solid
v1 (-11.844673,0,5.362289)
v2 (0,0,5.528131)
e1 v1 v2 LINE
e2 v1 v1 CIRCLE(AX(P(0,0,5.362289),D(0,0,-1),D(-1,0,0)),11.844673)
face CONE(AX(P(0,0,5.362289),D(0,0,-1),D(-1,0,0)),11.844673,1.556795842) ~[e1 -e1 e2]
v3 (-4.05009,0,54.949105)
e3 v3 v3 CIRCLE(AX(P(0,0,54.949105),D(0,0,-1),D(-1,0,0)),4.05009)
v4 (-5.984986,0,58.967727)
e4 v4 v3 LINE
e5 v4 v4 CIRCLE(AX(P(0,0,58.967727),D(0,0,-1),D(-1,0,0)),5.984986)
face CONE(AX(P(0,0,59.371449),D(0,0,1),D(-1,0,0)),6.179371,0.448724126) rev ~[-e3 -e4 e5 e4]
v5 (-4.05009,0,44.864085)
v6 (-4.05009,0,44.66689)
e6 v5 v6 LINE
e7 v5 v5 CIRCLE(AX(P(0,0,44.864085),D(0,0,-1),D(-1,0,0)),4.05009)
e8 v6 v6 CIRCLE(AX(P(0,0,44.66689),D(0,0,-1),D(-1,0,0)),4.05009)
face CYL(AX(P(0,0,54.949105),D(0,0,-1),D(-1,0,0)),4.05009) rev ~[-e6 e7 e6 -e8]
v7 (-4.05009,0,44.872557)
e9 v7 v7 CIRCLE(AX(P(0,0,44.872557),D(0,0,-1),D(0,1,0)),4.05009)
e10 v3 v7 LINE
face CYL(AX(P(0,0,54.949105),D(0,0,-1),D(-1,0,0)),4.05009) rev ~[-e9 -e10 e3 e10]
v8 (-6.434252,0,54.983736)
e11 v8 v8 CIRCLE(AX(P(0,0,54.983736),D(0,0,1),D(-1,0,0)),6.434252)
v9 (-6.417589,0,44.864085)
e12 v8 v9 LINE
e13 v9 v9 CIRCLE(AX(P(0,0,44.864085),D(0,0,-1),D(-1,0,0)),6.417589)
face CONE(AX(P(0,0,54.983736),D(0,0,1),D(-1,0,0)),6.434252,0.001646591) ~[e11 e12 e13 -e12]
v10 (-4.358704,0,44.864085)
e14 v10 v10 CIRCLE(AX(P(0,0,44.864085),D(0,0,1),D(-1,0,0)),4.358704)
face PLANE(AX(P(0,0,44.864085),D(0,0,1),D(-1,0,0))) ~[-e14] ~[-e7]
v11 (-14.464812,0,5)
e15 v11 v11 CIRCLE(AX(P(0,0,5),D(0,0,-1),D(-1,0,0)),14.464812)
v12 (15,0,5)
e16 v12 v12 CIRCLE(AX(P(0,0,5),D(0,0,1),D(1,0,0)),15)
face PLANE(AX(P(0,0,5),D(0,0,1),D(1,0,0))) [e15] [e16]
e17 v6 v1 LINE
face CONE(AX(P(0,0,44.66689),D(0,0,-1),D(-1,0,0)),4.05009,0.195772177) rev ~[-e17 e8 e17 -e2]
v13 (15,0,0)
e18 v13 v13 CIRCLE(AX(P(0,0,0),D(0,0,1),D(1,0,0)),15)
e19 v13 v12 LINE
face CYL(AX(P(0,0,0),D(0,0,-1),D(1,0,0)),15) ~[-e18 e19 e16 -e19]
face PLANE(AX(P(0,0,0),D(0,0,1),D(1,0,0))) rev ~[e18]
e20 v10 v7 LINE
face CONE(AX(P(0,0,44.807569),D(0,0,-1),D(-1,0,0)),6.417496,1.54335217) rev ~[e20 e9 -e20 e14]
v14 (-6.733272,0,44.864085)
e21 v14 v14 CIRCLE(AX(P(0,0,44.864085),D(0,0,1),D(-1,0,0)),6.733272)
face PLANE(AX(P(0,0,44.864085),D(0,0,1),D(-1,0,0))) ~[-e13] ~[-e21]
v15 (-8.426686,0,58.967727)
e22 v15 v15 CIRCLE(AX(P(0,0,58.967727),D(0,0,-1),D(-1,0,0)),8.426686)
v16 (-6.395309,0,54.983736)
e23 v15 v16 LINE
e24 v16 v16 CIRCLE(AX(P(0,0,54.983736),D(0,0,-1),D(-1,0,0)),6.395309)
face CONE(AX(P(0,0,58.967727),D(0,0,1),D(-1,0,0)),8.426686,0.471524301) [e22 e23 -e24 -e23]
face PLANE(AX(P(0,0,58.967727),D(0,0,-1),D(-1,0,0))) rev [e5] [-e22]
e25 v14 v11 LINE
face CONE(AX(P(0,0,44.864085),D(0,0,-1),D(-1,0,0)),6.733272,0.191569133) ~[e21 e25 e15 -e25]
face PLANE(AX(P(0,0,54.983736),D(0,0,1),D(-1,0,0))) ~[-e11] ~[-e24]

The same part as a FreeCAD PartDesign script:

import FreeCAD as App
import Part
import Sketcher

V = App.Vector
Q = App.Units.Quantity

doc = App.newDocument("Part")
body = doc.addObject("PartDesign::Body", "Body")

# Sketch on XY plane
sketch1 = body.newObject("Sketcher::SketchObject", "Sketch")
sketch1.AttachmentSupport = (doc.getObject("XY_Plane"), [""])
sketch1.MapMode = "FlatFace"
sketch1.addGeometry(Part.Circle(V(0, 0, 0), V(0, 0, 1), 15), False)
sketch1.addConstraint([
    Sketcher.Constraint("Coincident", 0, 3, -1, 1),
    Sketcher.Constraint("Diameter", 0, 30.0),
])
pad1 = body.newObject("PartDesign::Pad", "Pad")
pad1.Profile = sketch1
pad1.Length = 5

# Sketch on XZ plane
sketch2 = body.newObject("Sketcher::SketchObject", "Sketch001")
sketch2.AttachmentSupport = (doc.getObject("XZ_Plane"), [""])
sketch2.MapMode = "FlatFace"
sketch2.addGeometry([
    Part.LineSegment(V(-14.491172, 4.864085, 0), V(0, 4.864085, 0)),
    Part.LineSegment(V(0, 4.864085, 0), V(0, 44.864085, 0)),
    Part.LineSegment(V(0, 44.864085, 0), V(-6.733272, 44.864085, 0)),
    Part.LineSegment(V(-6.733272, 44.864085, 0), V(-14.491172, 4.864085, 0)),
], False)
sketch2.addConstraint([
    Sketcher.Constraint("Coincident", 0, 2, 1, 1),
    Sketcher.Constraint("Coincident", 1, 2, 2, 1),
    Sketcher.Constraint("Coincident", 2, 2, 3, 1),
    Sketcher.Constraint("Coincident", 3, 2, 0, 1),
    Sketcher.Constraint("Horizontal", 0),
    Sketcher.Constraint("Vertical", 1),
    Sketcher.Constraint("Horizontal", 2),
    Sketcher.Constraint("PointOnObject", 0, 2, -2),
    Sketcher.Constraint("DistanceY", 1, 1, 1, 2, 40.0),
    Sketcher.Constraint("DistanceX", 3, 2, 2, 2, 7.7579),
    Sketcher.Constraint("DistanceX", 0, 1, 0, 2, 14.491172),
    Sketcher.Constraint("DistanceY", -1, 1, 0, 2, 4.864085),
])
revolution = body.newObject("PartDesign::Revolution", "Revolution")
revolution.Profile = sketch2
revolution.ReferenceAxis = (sketch2, ["V_Axis"])
revolution.Angle = 360

# Sketch on XZ plane
sketch3 = body.newObject("Sketcher::SketchObject", "Sketch002")
sketch3.AttachmentSupport = (doc.getObject("XZ_Plane"), [""])
sketch3.MapMode = "FlatFace"
sketch3.addGeometry([
    Part.LineSegment(V(-6.417496, 44.807569, 0), V(0, 44.983736, 0)),
    Part.LineSegment(V(0, 44.983736, 0), V(0, 54.983736, 0)),
    Part.LineSegment(V(0, 54.983736, 0), V(-6.434252, 54.983736, 0)),
    Part.LineSegment(V(-6.434252, 54.983736, 0), V(-6.417496, 44.807569, 0)),
], False)
sketch3.addConstraint([
    Sketcher.Constraint("Coincident", 0, 2, 1, 1),
    Sketcher.Constraint("Coincident", 1, 2, 2, 1),
    Sketcher.Constraint("Coincident", 2, 2, 3, 1),
    Sketcher.Constraint("Coincident", 3, 2, 0, 1),
    Sketcher.Constraint("Vertical", 1),
    Sketcher.Constraint("Horizontal", 2),
    Sketcher.Constraint("PointOnObject", 0, 2, -2),
    Sketcher.Constraint("DistanceY", 1, 1, 1, 2, 10.0),
    Sketcher.Constraint("Distance", 3, 10.176181),
    Sketcher.Constraint("DistanceX", 2, 2, 2, 1, 6.434252),
    Sketcher.Constraint("DistanceY", -1, 1, 3, 2, 44.807569),
    Sketcher.Constraint("Distance", 0, 6.419914),
])
revolution2 = body.newObject("PartDesign::Revolution", "Revolution001")
revolution2.Profile = sketch3
revolution2.ReferenceAxis = (sketch3, ["V_Axis"])
revolution2.Angle = 360

# Sketch on XZ plane
sketch4 = body.newObject("Sketcher::SketchObject", "Sketch003")
sketch4.AttachmentSupport = (doc.getObject("XZ_Plane"), [""])
sketch4.MapMode = "FlatFace"
sketch4.addGeometry([
    Part.LineSegment(V(-8.426686, 58.967727, 0), V(-6.387146, 54.967727, 0)),
    Part.LineSegment(V(-6.387146, 54.967727, 0), V(0, 54.967727, 0)),
    Part.LineSegment(V(0, 54.967727, 0), V(0, 58.967727, 0)),
    Part.LineSegment(V(0, 58.967727, 0), V(-8.426686, 58.967727, 0)),
], False)
sketch4.addConstraint([
    Sketcher.Constraint("Coincident", 0, 2, 1, 1),
    Sketcher.Constraint("Coincident", 1, 2, 2, 1),
    Sketcher.Constraint("Coincident", 2, 2, 3, 1),
    Sketcher.Constraint("Coincident", 3, 2, 0, 1),
    Sketcher.Constraint("Horizontal", 1),
    Sketcher.Constraint("Vertical", 2),
    Sketcher.Constraint("Horizontal", 3),
    Sketcher.Constraint("PointOnObject", 1, 2, -2),
    Sketcher.Constraint("DistanceY", 2, 1, 2, 2, 4.0),
    Sketcher.Constraint("Distance", 0, 4.489958),
    Sketcher.Constraint("DistanceX", 1, 1, 1, 2, 6.387146),
    Sketcher.Constraint("DistanceY", -1, 1, 0, 2, 54.967727),
])
revolution3 = body.newObject("PartDesign::Revolution", "Revolution002")
revolution3.Profile = sketch4
revolution3.ReferenceAxis = (sketch4, ["V_Axis"])
revolution3.Angle = 360

# Sketch on XZ plane
sketch5 = body.newObject("Sketcher::SketchObject", "Sketch004")
sketch5.AttachmentSupport = (doc.getObject("XZ_Plane"), [""])
sketch5.MapMode = "FlatFace"
sketch5.addGeometry([
    Part.LineSegment(V(-4.05009, 44.66689, 0), V(-11.844673, 5.362289, 0)),  # 0
    Part.LineSegment(V(-11.844673, 5.362289, 0), V(0, 5.528131, 0)),  # 1
    Part.LineSegment(V(0, 5.528131, 0), V(0, 59.371449, 0)),  # 2
    Part.LineSegment(V(0, 59.371449, 0), V(-6.179371, 59.371449, 0)),  # 3
    Part.LineSegment(V(-6.179371, 59.371449, 0), V(-4.05009, 54.949105, 0)),  # 4
    Part.LineSegment(V(-4.05009, 54.949105, 0), V(-4.05009, 44.66689, 0)),  # 5
], False)
sketch5.addConstraint([
    Sketcher.Constraint("Coincident", 0, 2, 1, 1),
    Sketcher.Constraint("Coincident", 1, 2, 2, 1),
    Sketcher.Constraint("Coincident", 2, 2, 3, 1),
    Sketcher.Constraint("Coincident", 3, 2, 4, 1),
    Sketcher.Constraint("Coincident", 4, 2, 5, 1),
    Sketcher.Constraint("Coincident", 5, 2, 0, 1),
    Sketcher.Constraint("Vertical", 2),
    Sketcher.Constraint("Horizontal", 3),
    Sketcher.Constraint("Vertical", 5),
    Sketcher.Constraint("PointOnObject", 1, 2, -2),
    Sketcher.Constraint("Angle", 4, Q("-64.290001 deg")),
    Sketcher.Constraint("DistanceX", 3, 2, 3, 1, 6.179371),
    Sketcher.Constraint("DistanceY", 0, 2, 5, 2, 39.304601),
    Sketcher.Constraint("Distance", 0, 40.070028),
    Sketcher.Constraint("DistanceY", 2, 1, 2, 2, 53.843318),
    Sketcher.Constraint("DistanceY", 5, 2, 5, 1, 10.282215),
    Sketcher.Constraint("DistanceY", -1, 1, 0, 2, 5.362289),
    Sketcher.Constraint("DistanceY", -1, 1, 1, 2, 5.528131),
])
groove = body.newObject("PartDesign::Groove", "Groove")
groove.Profile = sketch5
groove.ReferenceAxis = (sketch5, ["V_Axis"])
groove.Angle = 360

doc.recompute()
